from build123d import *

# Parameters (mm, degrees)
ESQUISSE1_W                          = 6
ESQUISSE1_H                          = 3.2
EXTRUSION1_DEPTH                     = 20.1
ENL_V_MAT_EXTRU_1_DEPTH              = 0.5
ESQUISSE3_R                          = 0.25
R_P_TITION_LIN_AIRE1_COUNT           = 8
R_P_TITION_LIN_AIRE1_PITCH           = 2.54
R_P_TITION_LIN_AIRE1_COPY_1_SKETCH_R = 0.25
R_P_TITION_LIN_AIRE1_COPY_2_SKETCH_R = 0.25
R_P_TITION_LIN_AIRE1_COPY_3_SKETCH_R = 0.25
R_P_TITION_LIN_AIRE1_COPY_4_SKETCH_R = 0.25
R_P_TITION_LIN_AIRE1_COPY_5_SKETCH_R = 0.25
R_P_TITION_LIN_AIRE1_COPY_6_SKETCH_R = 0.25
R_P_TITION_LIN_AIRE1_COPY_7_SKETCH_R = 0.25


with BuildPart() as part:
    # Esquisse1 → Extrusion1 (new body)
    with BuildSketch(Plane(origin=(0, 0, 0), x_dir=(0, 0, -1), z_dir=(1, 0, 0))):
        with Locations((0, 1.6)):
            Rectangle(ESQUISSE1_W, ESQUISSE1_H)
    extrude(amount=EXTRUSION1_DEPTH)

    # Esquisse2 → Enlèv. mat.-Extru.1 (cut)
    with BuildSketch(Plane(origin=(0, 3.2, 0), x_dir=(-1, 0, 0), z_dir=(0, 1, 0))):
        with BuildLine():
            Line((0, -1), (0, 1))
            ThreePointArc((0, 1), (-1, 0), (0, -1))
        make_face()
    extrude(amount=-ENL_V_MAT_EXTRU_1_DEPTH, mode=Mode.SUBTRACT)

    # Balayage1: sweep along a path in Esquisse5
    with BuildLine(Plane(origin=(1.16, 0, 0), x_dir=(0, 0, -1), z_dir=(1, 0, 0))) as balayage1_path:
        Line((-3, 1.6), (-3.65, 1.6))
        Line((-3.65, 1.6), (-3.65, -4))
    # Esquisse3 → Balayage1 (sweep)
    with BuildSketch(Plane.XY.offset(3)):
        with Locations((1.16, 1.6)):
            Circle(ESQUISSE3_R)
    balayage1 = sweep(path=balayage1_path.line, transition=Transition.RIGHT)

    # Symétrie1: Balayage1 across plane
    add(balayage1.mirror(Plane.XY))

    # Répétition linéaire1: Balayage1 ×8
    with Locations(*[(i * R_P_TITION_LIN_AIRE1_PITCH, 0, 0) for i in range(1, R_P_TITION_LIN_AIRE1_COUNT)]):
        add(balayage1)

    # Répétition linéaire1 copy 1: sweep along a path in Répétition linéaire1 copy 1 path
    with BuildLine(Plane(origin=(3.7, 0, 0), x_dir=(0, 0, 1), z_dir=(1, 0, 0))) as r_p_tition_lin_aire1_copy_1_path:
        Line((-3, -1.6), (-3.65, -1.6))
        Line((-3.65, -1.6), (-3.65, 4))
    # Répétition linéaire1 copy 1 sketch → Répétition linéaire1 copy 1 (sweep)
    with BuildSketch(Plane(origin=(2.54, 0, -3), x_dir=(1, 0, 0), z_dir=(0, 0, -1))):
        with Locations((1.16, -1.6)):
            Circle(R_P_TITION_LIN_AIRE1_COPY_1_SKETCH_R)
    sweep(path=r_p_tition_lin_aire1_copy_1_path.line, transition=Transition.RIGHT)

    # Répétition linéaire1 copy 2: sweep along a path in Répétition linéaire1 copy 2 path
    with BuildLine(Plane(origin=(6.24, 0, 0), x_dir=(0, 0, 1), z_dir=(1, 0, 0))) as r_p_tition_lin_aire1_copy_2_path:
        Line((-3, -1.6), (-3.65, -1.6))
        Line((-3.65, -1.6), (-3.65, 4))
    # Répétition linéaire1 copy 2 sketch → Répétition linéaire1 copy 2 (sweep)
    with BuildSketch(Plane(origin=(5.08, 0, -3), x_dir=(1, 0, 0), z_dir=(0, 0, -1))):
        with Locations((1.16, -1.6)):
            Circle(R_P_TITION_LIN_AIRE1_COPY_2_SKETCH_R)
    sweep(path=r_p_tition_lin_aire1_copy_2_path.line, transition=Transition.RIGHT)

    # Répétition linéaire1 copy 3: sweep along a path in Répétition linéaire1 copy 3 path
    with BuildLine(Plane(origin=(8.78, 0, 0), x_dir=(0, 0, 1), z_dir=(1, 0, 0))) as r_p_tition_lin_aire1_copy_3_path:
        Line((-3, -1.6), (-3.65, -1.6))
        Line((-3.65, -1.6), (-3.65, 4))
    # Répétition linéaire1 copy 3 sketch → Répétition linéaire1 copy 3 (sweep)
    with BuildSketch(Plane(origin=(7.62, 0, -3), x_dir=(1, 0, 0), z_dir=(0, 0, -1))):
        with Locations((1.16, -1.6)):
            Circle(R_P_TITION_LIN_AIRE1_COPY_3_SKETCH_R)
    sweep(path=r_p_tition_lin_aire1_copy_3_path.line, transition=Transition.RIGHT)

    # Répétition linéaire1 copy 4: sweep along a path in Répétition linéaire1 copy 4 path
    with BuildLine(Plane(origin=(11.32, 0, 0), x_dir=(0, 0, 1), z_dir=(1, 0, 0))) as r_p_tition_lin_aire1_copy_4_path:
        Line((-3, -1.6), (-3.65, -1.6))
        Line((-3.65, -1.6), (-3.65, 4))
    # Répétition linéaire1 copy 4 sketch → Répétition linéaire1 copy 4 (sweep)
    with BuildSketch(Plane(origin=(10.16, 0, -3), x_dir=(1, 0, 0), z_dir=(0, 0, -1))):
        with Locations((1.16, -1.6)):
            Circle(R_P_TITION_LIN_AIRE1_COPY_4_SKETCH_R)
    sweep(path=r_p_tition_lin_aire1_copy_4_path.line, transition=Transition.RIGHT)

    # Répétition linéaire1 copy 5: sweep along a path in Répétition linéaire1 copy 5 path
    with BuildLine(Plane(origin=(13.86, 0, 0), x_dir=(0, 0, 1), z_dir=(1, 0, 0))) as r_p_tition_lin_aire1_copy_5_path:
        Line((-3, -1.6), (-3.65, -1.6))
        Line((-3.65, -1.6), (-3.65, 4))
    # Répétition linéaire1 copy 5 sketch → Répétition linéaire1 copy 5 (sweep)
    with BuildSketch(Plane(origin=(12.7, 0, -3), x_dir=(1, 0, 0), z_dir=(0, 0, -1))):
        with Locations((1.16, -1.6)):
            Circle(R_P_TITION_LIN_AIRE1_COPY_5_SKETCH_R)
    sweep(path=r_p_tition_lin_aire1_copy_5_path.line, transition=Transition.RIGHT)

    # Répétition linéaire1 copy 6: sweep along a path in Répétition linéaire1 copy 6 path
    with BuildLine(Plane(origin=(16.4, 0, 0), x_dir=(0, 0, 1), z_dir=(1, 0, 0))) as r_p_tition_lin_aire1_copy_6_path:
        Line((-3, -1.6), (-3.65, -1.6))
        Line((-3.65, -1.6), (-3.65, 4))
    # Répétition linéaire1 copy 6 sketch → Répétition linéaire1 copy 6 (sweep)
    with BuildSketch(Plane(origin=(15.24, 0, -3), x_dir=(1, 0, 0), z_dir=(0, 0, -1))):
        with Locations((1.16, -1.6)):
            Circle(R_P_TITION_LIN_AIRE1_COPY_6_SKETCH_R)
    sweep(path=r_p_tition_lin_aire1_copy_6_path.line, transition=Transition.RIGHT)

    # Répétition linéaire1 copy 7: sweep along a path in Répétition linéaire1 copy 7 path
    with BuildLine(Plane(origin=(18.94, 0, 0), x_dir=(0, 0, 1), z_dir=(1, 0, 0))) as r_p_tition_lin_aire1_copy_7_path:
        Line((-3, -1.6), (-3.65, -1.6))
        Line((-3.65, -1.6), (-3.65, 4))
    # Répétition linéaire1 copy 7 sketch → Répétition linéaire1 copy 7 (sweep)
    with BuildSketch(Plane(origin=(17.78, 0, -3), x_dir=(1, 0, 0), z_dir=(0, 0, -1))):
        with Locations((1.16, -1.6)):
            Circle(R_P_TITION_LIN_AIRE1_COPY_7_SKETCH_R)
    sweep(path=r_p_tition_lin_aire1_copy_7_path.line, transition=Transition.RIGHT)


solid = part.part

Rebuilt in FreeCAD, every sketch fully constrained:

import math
import FreeCAD as App
import Part
import Sketcher
from FreeCAD import Vector
Q = App.Units.Quantity

doc = App.newDocument("Part")
body = doc.addObject("PartDesign::Body", "Body")

# Sketch on YZ plane
sketch1 = body.newObject("Sketcher::SketchObject", "Sketch")
sketch1.AttachmentSupport = (doc.getObject("YZ_Plane"), [""])
sketch1.MapMode = "FlatFace"
sketch1.addGeometry(Part.LineSegment(Vector(3.2, 3, 0), Vector(0, 3, 0)), False)
sketch1.addGeometry(Part.LineSegment(Vector(0, 3, 0), Vector(0, -3, 0)), False)
sketch1.addGeometry(Part.LineSegment(Vector(0, -3, 0), Vector(3.2, -3, 0)), False)
sketch1.addGeometry(Part.LineSegment(Vector(3.2, -3, 0), Vector(3.2, 3, 0)), False)
sketch1.addConstraint(Sketcher.Constraint("Coincident", 0, 2, 1, 1))
sketch1.addConstraint(Sketcher.Constraint("Coincident", 1, 2, 2, 1))
sketch1.addConstraint(Sketcher.Constraint("Coincident", 2, 2, 3, 1))
sketch1.addConstraint(Sketcher.Constraint("Coincident", 3, 2, 0, 1))
sketch1.addConstraint(Sketcher.Constraint("Horizontal", 0))
sketch1.addConstraint(Sketcher.Constraint("Vertical", 1))
sketch1.addConstraint(Sketcher.Constraint("Horizontal", 2))
sketch1.addConstraint(Sketcher.Constraint("Vertical", 3))
sketch1.addConstraint(Sketcher.Constraint("Symmetric", 0, 2, 1, 2, -1, 1))
sketch1.addConstraint(Sketcher.Constraint("DistanceY", 1, 2, 1, 1, Q("6 mm")))
sketch1.addConstraint(Sketcher.Constraint("DistanceX", 0, 2, 0, 1, Q("3.2 mm")))
pad1 = body.newObject("PartDesign::Pad", "Pad")
pad1.Profile = sketch1
pad1.Length = 20.1

# Sketch on XZ plane
sketch2 = body.newObject("Sketcher::SketchObject", "Sketch001")
sketch2.AttachmentSupport = (doc.getObject("XZ_Plane"), [""])
sketch2.MapMode = "FlatFace"
sketch2.AttachmentOffset = App.Placement(Vector(0, 0, -3.2), App.Rotation())
sketch2.addGeometry(Part.LineSegment(Vector(0, -1, 0), Vector(0, 1, 0)), False)
sketch2.addGeometry(Part.ArcOfCircle(Part.Circle(Vector(0, 0, 0), Vector(0, 0, 1), 1), math.radians(-90), math.radians(90)), False)
sketch2.addConstraint(Sketcher.Constraint("Coincident", 0, 1, 1, 1))
sketch2.addConstraint(Sketcher.Constraint("Coincident", 1, 2, 0, 2))
sketch2.addConstraint(Sketcher.Constraint("Vertical", 0))
sketch2.addConstraint(Sketcher.Constraint("Coincident", 1, 3, -1, 1))
sketch2.addConstraint(Sketcher.Constraint("PointOnObject", 0, 1, -2))
sketch2.addConstraint(Sketcher.Constraint("Radius", 1, Q("1 mm")))
pocket1 = body.newObject("PartDesign::Pocket", "Pocket")
pocket1.Profile = sketch2
pocket1.Length = 0.5
pocket1.Reversed = True

# Sketch on XY plane
sketch3 = body.newObject("Sketcher::SketchObject", "Sketch002")
sketch3.AttachmentSupport = (doc.getObject("XY_Plane"), [""])
sketch3.MapMode = "FlatFace"
sketch3.AttachmentOffset = App.Placement(Vector(0, 0, 3), App.Rotation())
sketch3.addGeometry(Part.Circle(Vector(1.16, 1.6, 0), Vector(0, 0, 1), 0.25), False)
sketch3.addConstraint(Sketcher.Constraint("Diameter", 0, Q("0.5 mm")))
sketch3.addConstraint(Sketcher.Constraint("DistanceY", -1, 1, 0, 3, Q("1.6 mm")))
sketch3.addConstraint(Sketcher.Constraint("DistanceX", -1, 1, 0, 3, Q("1.16 mm")))

# Sketch on YZ plane
sketch4 = body.newObject("Sketcher::SketchObject", "Sketch003")
sketch4.AttachmentSupport = (doc.getObject("YZ_Plane"), [""])
sketch4.MapMode = "FlatFace"
sketch4.AttachmentOffset = App.Placement(Vector(0, 0, 1.16), App.Rotation())
sketch4.addGeometry(Part.LineSegment(Vector(1.6, 3, 0), Vector(1.6, 3.65, 0)), False)
sketch4.addGeometry(Part.LineSegment(Vector(1.6, 3.65, 0), Vector(-4, 3.65, 0)), False)
sketch4.addConstraint(Sketcher.Constraint("Coincident", 0, 2, 1, 1))
sketch4.addConstraint(Sketcher.Constraint("Vertical", 0))
sketch4.addConstraint(Sketcher.Constraint("Horizontal", 1))
sketch4.addConstraint(Sketcher.Constraint("DistanceX", 1, 2, 1, 1, Q("5.6 mm")))
sketch4.addConstraint(Sketcher.Constraint("DistanceY", -1, 1, 0, 1, Q("3 mm")))
sketch4.addConstraint(Sketcher.Constraint("DistanceX", 1, 2, -1, 1, Q("4 mm")))
sketch4.addConstraint(Sketcher.Constraint("DistanceY", 0, 1, 0, 2, Q("0.65 mm")))
doc.recompute()

additivepipe = body.newObject("PartDesign::AdditivePipe", "AdditivePipe")
additivepipe.Profile = sketch3
additivepipe.Spine = (sketch4, ["Edge1", "Edge2"])
additivepipe.Transition = "Right corner"
doc.recompute()

mirrored = body.newObject("PartDesign::Mirrored", "Mirrored")
mirrored.Originals = [additivepipe]
mirrored.MirrorPlane = (doc.getObject("XY_Plane"), [""])
body.Tip = mirrored
doc.recompute()

linearpattern = body.newObject("PartDesign::LinearPattern", "LinearPattern")
linearpattern.Originals = [additivepipe]
linearpattern.Direction = (doc.getObject("X_Axis"), [""])
linearpattern.Mode = "offset"
linearpattern.Offset = 2.54
linearpattern.Occurrences = 8
body.Tip = linearpattern

# Sketch on XY plane
sketch5 = body.newObject("Sketcher::SketchObject", "Sketch004")
sketch5.AttachmentSupport = (doc.getObject("XY_Plane"), [""])
sketch5.MapMode = "FlatFace"
sketch5.AttachmentOffset = App.Placement(Vector(0, 0, -3), App.Rotation())
sketch5.addGeometry(Part.Circle(Vector(3.7, 1.6, 0), Vector(0, 0, 1), 0.25), False)
sketch5.addConstraint(Sketcher.Constraint("Diameter", 0, Q("0.5 mm")))
sketch5.addConstraint(Sketcher.Constraint("DistanceX", -1, 1, 0, 3, Q("3.7 mm")))
sketch5.addConstraint(Sketcher.Constraint("DistanceY", -1, 1, 0, 3, Q("1.6 mm")))

# Sketch on YZ plane
sketch6 = body.newObject("Sketcher::SketchObject", "Sketch005")
sketch6.AttachmentSupport = (doc.getObject("YZ_Plane"), [""])
sketch6.MapMode = "FlatFace"
sketch6.AttachmentOffset = App.Placement(Vector(0, 0, 3.7), App.Rotation())
sketch6.addGeometry(Part.LineSegment(Vector(1.6, -3, 0), Vector(1.6, -3.65, 0)), False)
sketch6.addGeometry(Part.LineSegment(Vector(1.6, -3.65, 0), Vector(-4, -3.65, 0)), False)
sketch6.addConstraint(Sketcher.Constraint("Coincident", 0, 2, 1, 1))
sketch6.addConstraint(Sketcher.Constraint("Vertical", 0))
sketch6.addConstraint(Sketcher.Constraint("Horizontal", 1))
sketch6.addConstraint(Sketcher.Constraint("DistanceX", 1, 2, 1, 1, Q("5.6 mm")))
sketch6.addConstraint(Sketcher.Constraint("DistanceY", 0, 1, -1, 1, Q("3 mm")))
sketch6.addConstraint(Sketcher.Constraint("DistanceX", 1, 2, -1, 1, Q("4 mm")))
sketch6.addConstraint(Sketcher.Constraint("DistanceY", 0, 2, 0, 1, Q("0.65 mm")))
doc.recompute()

additivepipe2 = body.newObject("PartDesign::AdditivePipe", "AdditivePipe001")
additivepipe2.Profile = sketch5
additivepipe2.Spine = (sketch6, ["Edge1", "Edge2"])
additivepipe2.Transition = "Right corner"

# Sketch on XY plane
sketch7 = body.newObject("Sketcher::SketchObject", "Sketch006")
sketch7.AttachmentSupport = (doc.getObject("XY_Plane"), [""])
sketch7.MapMode = "FlatFace"
sketch7.AttachmentOffset = App.Placement(Vector(0, 0, -3), App.Rotation())
sketch7.addGeometry(Part.Circle(Vector(6.24, 1.6, 0), Vector(0, 0, 1), 0.25), False)
sketch7.addConstraint(Sketcher.Constraint("Diameter", 0, Q("0.5 mm")))
sketch7.addConstraint(Sketcher.Constraint("DistanceY", -1, 1, 0, 3, Q("1.6 mm")))
sketch7.addConstraint(Sketcher.Constraint("DistanceX", -1, 1, 0, 3, Q("6.24 mm")))

# Sketch on YZ plane
sketch8 = body.newObject("Sketcher::SketchObject", "Sketch007")
sketch8.AttachmentSupport = (doc.getObject("YZ_Plane"), [""])
sketch8.MapMode = "FlatFace"
sketch8.AttachmentOffset = App.Placement(Vector(0, 0, 6.24), App.Rotation())
sketch8.addGeometry(Part.LineSegment(Vector(1.6, -3, 0), Vector(1.6, -3.65, 0)), False)
sketch8.addGeometry(Part.LineSegment(Vector(1.6, -3.65, 0), Vector(-4, -3.65, 0)), False)
sketch8.addConstraint(Sketcher.Constraint("Coincident", 0, 2, 1, 1))
sketch8.addConstraint(Sketcher.Constraint("Vertical", 0))
sketch8.addConstraint(Sketcher.Constraint("Horizontal", 1))
sketch8.addConstraint(Sketcher.Constraint("DistanceX", 1, 2, 1, 1, Q("5.6 mm")))
sketch8.addConstraint(Sketcher.Constraint("DistanceY", 0, 1, -1, 1, Q("3 mm")))
sketch8.addConstraint(Sketcher.Constraint("DistanceX", 1, 2, -1, 1, Q("4 mm")))
sketch8.addConstraint(Sketcher.Constraint("DistanceY", 0, 2, 0, 1, Q("0.65 mm")))
doc.recompute()

additivepipe3 = body.newObject("PartDesign::AdditivePipe", "AdditivePipe002")
additivepipe3.Profile = sketch7
additivepipe3.Spine = (sketch8, ["Edge1", "Edge2"])
additivepipe3.Transition = "Right corner"

# Sketch on XY plane
sketch9 = body.newObject("Sketcher::SketchObject", "Sketch008")
sketch9.AttachmentSupport = (doc.getObject("XY_Plane"), [""])
sketch9.MapMode = "FlatFace"
sketch9.AttachmentOffset = App.Placement(Vector(0, 0, -3), App.Rotation())
sketch9.addGeometry(Part.Circle(Vector(8.78, 1.6, 0), Vector(0, 0, 1), 0.25), False)
sketch9.addConstraint(Sketcher.Constraint("Diameter", 0, Q("0.5 mm")))
sketch9.addConstraint(Sketcher.Constraint("DistanceY", -1, 1, 0, 3, Q("1.6 mm")))
sketch9.addConstraint(Sketcher.Constraint("DistanceX", -1, 1, 0, 3, Q("8.78 mm")))

# Sketch on YZ plane
sketch10 = body.newObject("Sketcher::SketchObject", "Sketch009")
sketch10.AttachmentSupport = (doc.getObject("YZ_Plane"), [""])
sketch10.MapMode = "FlatFace"
sketch10.AttachmentOffset = App.Placement(Vector(0, 0, 8.78), App.Rotation())
sketch10.addGeometry(Part.LineSegment(Vector(1.6, -3, 0), Vector(1.6, -3.65, 0)), False)
sketch10.addGeometry(Part.LineSegment(Vector(1.6, -3.65, 0), Vector(-4, -3.65, 0)), False)
sketch10.addConstraint(Sketcher.Constraint("Coincident", 0, 2, 1, 1))
sketch10.addConstraint(Sketcher.Constraint("Vertical", 0))
sketch10.addConstraint(Sketcher.Constraint("Horizontal", 1))
sketch10.addConstraint(Sketcher.Constraint("DistanceX", 1, 2, 1, 1, Q("5.6 mm")))
sketch10.addConstraint(Sketcher.Constraint("DistanceY", 0, 1, -1, 1, Q("3 mm")))
sketch10.addConstraint(Sketcher.Constraint("DistanceX", 1, 2, -1, 1, Q("4 mm")))
sketch10.addConstraint(Sketcher.Constraint("DistanceY", 0, 2, 0, 1, Q("0.65 mm")))
doc.recompute()

additivepipe4 = body.newObject("PartDesign::AdditivePipe", "AdditivePipe003")
additivepipe4.Profile = sketch9
additivepipe4.Spine = (sketch10, ["Edge1", "Edge2"])
additivepipe4.Transition = "Right corner"

# Sketch on XY plane
sketch11 = body.newObject("Sketcher::SketchObject", "Sketch010")
sketch11.AttachmentSupport = (doc.getObject("XY_Plane"), [""])
sketch11.MapMode = "FlatFace"
sketch11.AttachmentOffset = App.Placement(Vector(0, 0, -3), App.Rotation())
sketch11.addGeometry(Part.Circle(Vector(11.32, 1.6, 0), Vector(0, 0, 1), 0.25), False)
sketch11.addConstraint(Sketcher.Constraint("Diameter", 0, Q("0.5 mm")))
sketch11.addConstraint(Sketcher.Constraint("DistanceY", -1, 1, 0, 3, Q("1.6 mm")))
sketch11.addConstraint(Sketcher.Constraint("DistanceX", -1, 1, 0, 3, Q("11.32 mm")))

# Sketch on YZ plane
sketch12 = body.newObject("Sketcher::SketchObject", "Sketch011")
sketch12.AttachmentSupport = (doc.getObject("YZ_Plane"), [""])
sketch12.MapMode = "FlatFace"
sketch12.AttachmentOffset = App.Placement(Vector(0, 0, 11.32), App.Rotation())
sketch12.addGeometry(Part.LineSegment(Vector(1.6, -3, 0), Vector(1.6, -3.65, 0)), False)
sketch12.addGeometry(Part.LineSegment(Vector(1.6, -3.65, 0), Vector(-4, -3.65, 0)), False)
sketch12.addConstraint(Sketcher.Constraint("Coincident", 0, 2, 1, 1))
sketch12.addConstraint(Sketcher.Constraint("Vertical", 0))
sketch12.addConstraint(Sketcher.Constraint("Horizontal", 1))
sketch12.addConstraint(Sketcher.Constraint("DistanceX", 1, 2, 1, 1, Q("5.6 mm")))
sketch12.addConstraint(Sketcher.Constraint("DistanceY", 0, 1, -1, 1, Q("3 mm")))
sketch12.addConstraint(Sketcher.Constraint("DistanceX", 1, 2, -1, 1, Q("4 mm")))
sketch12.addConstraint(Sketcher.Constraint("DistanceY", 0, 2, 0, 1, Q("0.65 mm")))
doc.recompute()

additivepipe5 = body.newObject("PartDesign::AdditivePipe", "AdditivePipe004")
additivepipe5.Profile = sketch11
additivepipe5.Spine = (sketch12, ["Edge1", "Edge2"])
additivepipe5.Transition = "Right corner"

# Sketch on XY plane
sketch13 = body.newObject("Sketcher::SketchObject", "Sketch012")
sketch13.AttachmentSupport = (doc.getObject("XY_Plane"), [""])
sketch13.MapMode = "FlatFace"
sketch13.AttachmentOffset = App.Placement(Vector(0, 0, -3), App.Rotation())
sketch13.addGeometry(Part.Circle(Vector(13.86, 1.6, 0), Vector(0, 0, 1), 0.25), False)
sketch13.addConstraint(Sketcher.Constraint("Diameter", 0, Q("0.5 mm")))
sketch13.addConstraint(Sketcher.Constraint("DistanceY", -1, 1, 0, 3, Q("1.6 mm")))
sketch13.addConstraint(Sketcher.Constraint("DistanceX", -1, 1, 0, 3, Q("13.86 mm")))

# Sketch on YZ plane
sketch14 = body.newObject("Sketcher::SketchObject", "Sketch013")
sketch14.AttachmentSupport = (doc.getObject("YZ_Plane"), [""])
sketch14.MapMode = "FlatFace"
sketch14.AttachmentOffset = App.Placement(Vector(0, 0, 13.86), App.Rotation())
sketch14.addGeometry(Part.LineSegment(Vector(1.6, -3, 0), Vector(1.6, -3.65, 0)), False)
sketch14.addGeometry(Part.LineSegment(Vector(1.6, -3.65, 0), Vector(-4, -3.65, 0)), False)
sketch14.addConstraint(Sketcher.Constraint("Coincident", 0, 2, 1, 1))
sketch14.addConstraint(Sketcher.Constraint("Vertical", 0))
sketch14.addConstraint(Sketcher.Constraint("Horizontal", 1))
sketch14.addConstraint(Sketcher.Constraint("DistanceX", 1, 2, 1, 1, Q("5.6 mm")))
sketch14.addConstraint(Sketcher.Constraint("DistanceY", 0, 1, -1, 1, Q("3 mm")))
sketch14.addConstraint(Sketcher.Constraint("DistanceX", 1, 2, -1, 1, Q("4 mm")))
sketch14.addConstraint(Sketcher.Constraint("DistanceY", 0, 2, 0, 1, Q("0.65 mm")))
doc.recompute()

additivepipe6 = body.newObject("PartDesign::AdditivePipe", "AdditivePipe005")
additivepipe6.Profile = sketch13
additivepipe6.Spine = (sketch14, ["Edge1", "Edge2"])
additivepipe6.Transition = "Right corner"

# Sketch on XY plane
sketch15 = body.newObject("Sketcher::SketchObject", "Sketch014")
sketch15.AttachmentSupport = (doc.getObject("XY_Plane"), [""])
sketch15.MapMode = "FlatFace"
sketch15.AttachmentOffset = App.Placement(Vector(0, 0, -3), App.Rotation())
sketch15.addGeometry(Part.Circle(Vector(16.4, 1.6, 0), Vector(0, 0, 1), 0.25), False)
sketch15.addConstraint(Sketcher.Constraint("Diameter", 0, Q("0.5 mm")))
sketch15.addConstraint(Sketcher.Constraint("DistanceX", -1, 1, 0, 3, Q("16.4 mm")))
sketch15.addConstraint(Sketcher.Constraint("DistanceY", -1, 1, 0, 3, Q("1.6 mm")))

# Sketch on YZ plane
sketch16 = body.newObject("Sketcher::SketchObject", "Sketch015")
sketch16.AttachmentSupport = (doc.getObject("YZ_Plane"), [""])
sketch16.MapMode = "FlatFace"
sketch16.AttachmentOffset = App.Placement(Vector(0, 0, 16.4), App.Rotation())
sketch16.addGeometry(Part.LineSegment(Vector(1.6, -3, 0), Vector(1.6, -3.65, 0)), False)
sketch16.addGeometry(Part.LineSegment(Vector(1.6, -3.65, 0), Vector(-4, -3.65, 0)), False)
sketch16.addConstraint(Sketcher.Constraint("Coincident", 0, 2, 1, 1))
sketch16.addConstraint(Sketcher.Constraint("Vertical", 0))
sketch16.addConstraint(Sketcher.Constraint("Horizontal", 1))
sketch16.addConstraint(Sketcher.Constraint("DistanceX", 1, 2, 1, 1, Q("5.6 mm")))
sketch16.addConstraint(Sketcher.Constraint("DistanceY", 0, 1, -1, 1, Q("3 mm")))
sketch16.addConstraint(Sketcher.Constraint("DistanceX", 1, 2, -1, 1, Q("4 mm")))
sketch16.addConstraint(Sketcher.Constraint("DistanceY", 0, 2, 0, 1, Q("0.65 mm")))
doc.recompute()

additivepipe7 = body.newObject("PartDesign::AdditivePipe", "AdditivePipe006")
additivepipe7.Profile = sketch15
additivepipe7.Spine = (sketch16, ["Edge1", "Edge2"])
additivepipe7.Transition = "Right corner"

# Sketch on XY plane
sketch17 = body.newObject("Sketcher::SketchObject", "Sketch016")
sketch17.AttachmentSupport = (doc.getObject("XY_Plane"), [""])
sketch17.MapMode = "FlatFace"
sketch17.AttachmentOffset = App.Placement(Vector(0, 0, -3), App.Rotation())
sketch17.addGeometry(Part.Circle(Vector(18.94, 1.6, 0), Vector(0, 0, 1), 0.25), False)
sketch17.addConstraint(Sketcher.Constraint("Diameter", 0, Q("0.5 mm")))
sketch17.addConstraint(Sketcher.Constraint("DistanceY", -1, 1, 0, 3, Q("1.6 mm")))
sketch17.addConstraint(Sketcher.Constraint("DistanceX", -1, 1, 0, 3, Q("18.94 mm")))

# Sketch on YZ plane
sketch18 = body.newObject("Sketcher::SketchObject", "Sketch017")
sketch18.AttachmentSupport = (doc.getObject("YZ_Plane"), [""])
sketch18.MapMode = "FlatFace"
sketch18.AttachmentOffset = App.Placement(Vector(0, 0, 18.94), App.Rotation())
sketch18.addGeometry(Part.LineSegment(Vector(1.6, -3, 0), Vector(1.6, -3.65, 0)), False)
sketch18.addGeometry(Part.LineSegment(Vector(1.6, -3.65, 0), Vector(-4, -3.65, 0)), False)
sketch18.addConstraint(Sketcher.Constraint("Coincident", 0, 2, 1, 1))
sketch18.addConstraint(Sketcher.Constraint("Vertical", 0))
sketch18.addConstraint(Sketcher.Constraint("Horizontal", 1))
sketch18.addConstraint(Sketcher.Constraint("DistanceX", 1, 2, 1, 1, Q("5.6 mm")))
sketch18.addConstraint(Sketcher.Constraint("DistanceY", 0, 1, -1, 1, Q("3 mm")))
sketch18.addConstraint(Sketcher.Constraint("DistanceX", 1, 2, -1, 1, Q("4 mm")))
sketch18.addConstraint(Sketcher.Constraint("DistanceY", 0, 2, 0, 1, Q("0.65 mm")))
doc.recompute()

additivepipe8 = body.newObject("PartDesign::AdditivePipe", "AdditivePipe007")
additivepipe8.Profile = sketch17
additivepipe8.Spine = (sketch18, ["Edge1", "Edge2"])
additivepipe8.Transition = "Right corner"

doc.recompute()
